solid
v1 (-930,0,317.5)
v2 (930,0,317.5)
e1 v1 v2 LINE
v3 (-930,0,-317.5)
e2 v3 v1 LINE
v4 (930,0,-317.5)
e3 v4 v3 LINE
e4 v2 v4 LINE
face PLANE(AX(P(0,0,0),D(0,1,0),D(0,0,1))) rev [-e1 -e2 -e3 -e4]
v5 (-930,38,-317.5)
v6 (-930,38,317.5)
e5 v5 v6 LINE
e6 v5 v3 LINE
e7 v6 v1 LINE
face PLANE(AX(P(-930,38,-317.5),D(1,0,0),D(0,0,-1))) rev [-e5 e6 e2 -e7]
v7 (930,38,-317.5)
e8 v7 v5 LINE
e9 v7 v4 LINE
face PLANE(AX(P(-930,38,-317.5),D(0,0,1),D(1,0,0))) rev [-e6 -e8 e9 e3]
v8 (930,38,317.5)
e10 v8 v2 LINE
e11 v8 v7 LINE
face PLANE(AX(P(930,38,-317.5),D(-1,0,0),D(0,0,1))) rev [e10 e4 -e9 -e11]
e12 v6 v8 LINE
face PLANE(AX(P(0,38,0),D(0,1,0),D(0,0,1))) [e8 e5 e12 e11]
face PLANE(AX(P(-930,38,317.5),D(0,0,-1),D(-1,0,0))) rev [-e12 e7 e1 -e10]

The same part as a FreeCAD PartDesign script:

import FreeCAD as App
import Part
import Sketcher
from FreeCAD import Vector


def add_polygon(sketch, points):
    """Adds a closed chain of lines whose ends are joined by coincident constraints."""
    first, n = sketch.GeometryCount, len(points)
    for a, b in zip(points, points[1:] + points[:1]):
        sketch.addGeometry(Part.LineSegment(App.Vector(*a, 0), App.Vector(*b, 0)), False)
    for i in range(n):
        sketch.addConstraint(Sketcher.Constraint("Coincident", first + i, 2, first + (i + 1) % n, 1))

doc = App.newDocument("Part")
body = doc.addObject("PartDesign::Body", "Body")

# Sketch on XZ plane
sketch1 = body.newObject("Sketcher::SketchObject", "Sketch")
sketch1.AttachmentSupport = (doc.getObject("XZ_Plane"), [""])
sketch1.MapMode = "FlatFace"
add_polygon(sketch1, [(-930, -318), (-930, 318), (930, 318), (930, -318)])  # lines 0-3
sketch1.addConstraint(Sketcher.Constraint("Vertical", 0))
sketch1.addConstraint(Sketcher.Constraint("Horizontal", 1))
sketch1.addConstraint(Sketcher.Constraint("Vertical", 2))
sketch1.addConstraint(Sketcher.Constraint("Horizontal", 3))
sketch1.addConstraint(Sketcher.Constraint("Symmetric", 0, 2, 2, 2, -1, 1))
sketch1.addConstraint(Sketcher.Constraint("DistanceX", 1, 1, 1, 2, 1860.0))
sketch1.addConstraint(Sketcher.Constraint("DistanceY", 0, 1, 0, 2, 635.0))
pad1 = body.newObject("PartDesign::Pad", "Pad")
pad1.Profile = sketch1
pad1.Length = 38
pad1.Reversed = True

doc.recompute()
